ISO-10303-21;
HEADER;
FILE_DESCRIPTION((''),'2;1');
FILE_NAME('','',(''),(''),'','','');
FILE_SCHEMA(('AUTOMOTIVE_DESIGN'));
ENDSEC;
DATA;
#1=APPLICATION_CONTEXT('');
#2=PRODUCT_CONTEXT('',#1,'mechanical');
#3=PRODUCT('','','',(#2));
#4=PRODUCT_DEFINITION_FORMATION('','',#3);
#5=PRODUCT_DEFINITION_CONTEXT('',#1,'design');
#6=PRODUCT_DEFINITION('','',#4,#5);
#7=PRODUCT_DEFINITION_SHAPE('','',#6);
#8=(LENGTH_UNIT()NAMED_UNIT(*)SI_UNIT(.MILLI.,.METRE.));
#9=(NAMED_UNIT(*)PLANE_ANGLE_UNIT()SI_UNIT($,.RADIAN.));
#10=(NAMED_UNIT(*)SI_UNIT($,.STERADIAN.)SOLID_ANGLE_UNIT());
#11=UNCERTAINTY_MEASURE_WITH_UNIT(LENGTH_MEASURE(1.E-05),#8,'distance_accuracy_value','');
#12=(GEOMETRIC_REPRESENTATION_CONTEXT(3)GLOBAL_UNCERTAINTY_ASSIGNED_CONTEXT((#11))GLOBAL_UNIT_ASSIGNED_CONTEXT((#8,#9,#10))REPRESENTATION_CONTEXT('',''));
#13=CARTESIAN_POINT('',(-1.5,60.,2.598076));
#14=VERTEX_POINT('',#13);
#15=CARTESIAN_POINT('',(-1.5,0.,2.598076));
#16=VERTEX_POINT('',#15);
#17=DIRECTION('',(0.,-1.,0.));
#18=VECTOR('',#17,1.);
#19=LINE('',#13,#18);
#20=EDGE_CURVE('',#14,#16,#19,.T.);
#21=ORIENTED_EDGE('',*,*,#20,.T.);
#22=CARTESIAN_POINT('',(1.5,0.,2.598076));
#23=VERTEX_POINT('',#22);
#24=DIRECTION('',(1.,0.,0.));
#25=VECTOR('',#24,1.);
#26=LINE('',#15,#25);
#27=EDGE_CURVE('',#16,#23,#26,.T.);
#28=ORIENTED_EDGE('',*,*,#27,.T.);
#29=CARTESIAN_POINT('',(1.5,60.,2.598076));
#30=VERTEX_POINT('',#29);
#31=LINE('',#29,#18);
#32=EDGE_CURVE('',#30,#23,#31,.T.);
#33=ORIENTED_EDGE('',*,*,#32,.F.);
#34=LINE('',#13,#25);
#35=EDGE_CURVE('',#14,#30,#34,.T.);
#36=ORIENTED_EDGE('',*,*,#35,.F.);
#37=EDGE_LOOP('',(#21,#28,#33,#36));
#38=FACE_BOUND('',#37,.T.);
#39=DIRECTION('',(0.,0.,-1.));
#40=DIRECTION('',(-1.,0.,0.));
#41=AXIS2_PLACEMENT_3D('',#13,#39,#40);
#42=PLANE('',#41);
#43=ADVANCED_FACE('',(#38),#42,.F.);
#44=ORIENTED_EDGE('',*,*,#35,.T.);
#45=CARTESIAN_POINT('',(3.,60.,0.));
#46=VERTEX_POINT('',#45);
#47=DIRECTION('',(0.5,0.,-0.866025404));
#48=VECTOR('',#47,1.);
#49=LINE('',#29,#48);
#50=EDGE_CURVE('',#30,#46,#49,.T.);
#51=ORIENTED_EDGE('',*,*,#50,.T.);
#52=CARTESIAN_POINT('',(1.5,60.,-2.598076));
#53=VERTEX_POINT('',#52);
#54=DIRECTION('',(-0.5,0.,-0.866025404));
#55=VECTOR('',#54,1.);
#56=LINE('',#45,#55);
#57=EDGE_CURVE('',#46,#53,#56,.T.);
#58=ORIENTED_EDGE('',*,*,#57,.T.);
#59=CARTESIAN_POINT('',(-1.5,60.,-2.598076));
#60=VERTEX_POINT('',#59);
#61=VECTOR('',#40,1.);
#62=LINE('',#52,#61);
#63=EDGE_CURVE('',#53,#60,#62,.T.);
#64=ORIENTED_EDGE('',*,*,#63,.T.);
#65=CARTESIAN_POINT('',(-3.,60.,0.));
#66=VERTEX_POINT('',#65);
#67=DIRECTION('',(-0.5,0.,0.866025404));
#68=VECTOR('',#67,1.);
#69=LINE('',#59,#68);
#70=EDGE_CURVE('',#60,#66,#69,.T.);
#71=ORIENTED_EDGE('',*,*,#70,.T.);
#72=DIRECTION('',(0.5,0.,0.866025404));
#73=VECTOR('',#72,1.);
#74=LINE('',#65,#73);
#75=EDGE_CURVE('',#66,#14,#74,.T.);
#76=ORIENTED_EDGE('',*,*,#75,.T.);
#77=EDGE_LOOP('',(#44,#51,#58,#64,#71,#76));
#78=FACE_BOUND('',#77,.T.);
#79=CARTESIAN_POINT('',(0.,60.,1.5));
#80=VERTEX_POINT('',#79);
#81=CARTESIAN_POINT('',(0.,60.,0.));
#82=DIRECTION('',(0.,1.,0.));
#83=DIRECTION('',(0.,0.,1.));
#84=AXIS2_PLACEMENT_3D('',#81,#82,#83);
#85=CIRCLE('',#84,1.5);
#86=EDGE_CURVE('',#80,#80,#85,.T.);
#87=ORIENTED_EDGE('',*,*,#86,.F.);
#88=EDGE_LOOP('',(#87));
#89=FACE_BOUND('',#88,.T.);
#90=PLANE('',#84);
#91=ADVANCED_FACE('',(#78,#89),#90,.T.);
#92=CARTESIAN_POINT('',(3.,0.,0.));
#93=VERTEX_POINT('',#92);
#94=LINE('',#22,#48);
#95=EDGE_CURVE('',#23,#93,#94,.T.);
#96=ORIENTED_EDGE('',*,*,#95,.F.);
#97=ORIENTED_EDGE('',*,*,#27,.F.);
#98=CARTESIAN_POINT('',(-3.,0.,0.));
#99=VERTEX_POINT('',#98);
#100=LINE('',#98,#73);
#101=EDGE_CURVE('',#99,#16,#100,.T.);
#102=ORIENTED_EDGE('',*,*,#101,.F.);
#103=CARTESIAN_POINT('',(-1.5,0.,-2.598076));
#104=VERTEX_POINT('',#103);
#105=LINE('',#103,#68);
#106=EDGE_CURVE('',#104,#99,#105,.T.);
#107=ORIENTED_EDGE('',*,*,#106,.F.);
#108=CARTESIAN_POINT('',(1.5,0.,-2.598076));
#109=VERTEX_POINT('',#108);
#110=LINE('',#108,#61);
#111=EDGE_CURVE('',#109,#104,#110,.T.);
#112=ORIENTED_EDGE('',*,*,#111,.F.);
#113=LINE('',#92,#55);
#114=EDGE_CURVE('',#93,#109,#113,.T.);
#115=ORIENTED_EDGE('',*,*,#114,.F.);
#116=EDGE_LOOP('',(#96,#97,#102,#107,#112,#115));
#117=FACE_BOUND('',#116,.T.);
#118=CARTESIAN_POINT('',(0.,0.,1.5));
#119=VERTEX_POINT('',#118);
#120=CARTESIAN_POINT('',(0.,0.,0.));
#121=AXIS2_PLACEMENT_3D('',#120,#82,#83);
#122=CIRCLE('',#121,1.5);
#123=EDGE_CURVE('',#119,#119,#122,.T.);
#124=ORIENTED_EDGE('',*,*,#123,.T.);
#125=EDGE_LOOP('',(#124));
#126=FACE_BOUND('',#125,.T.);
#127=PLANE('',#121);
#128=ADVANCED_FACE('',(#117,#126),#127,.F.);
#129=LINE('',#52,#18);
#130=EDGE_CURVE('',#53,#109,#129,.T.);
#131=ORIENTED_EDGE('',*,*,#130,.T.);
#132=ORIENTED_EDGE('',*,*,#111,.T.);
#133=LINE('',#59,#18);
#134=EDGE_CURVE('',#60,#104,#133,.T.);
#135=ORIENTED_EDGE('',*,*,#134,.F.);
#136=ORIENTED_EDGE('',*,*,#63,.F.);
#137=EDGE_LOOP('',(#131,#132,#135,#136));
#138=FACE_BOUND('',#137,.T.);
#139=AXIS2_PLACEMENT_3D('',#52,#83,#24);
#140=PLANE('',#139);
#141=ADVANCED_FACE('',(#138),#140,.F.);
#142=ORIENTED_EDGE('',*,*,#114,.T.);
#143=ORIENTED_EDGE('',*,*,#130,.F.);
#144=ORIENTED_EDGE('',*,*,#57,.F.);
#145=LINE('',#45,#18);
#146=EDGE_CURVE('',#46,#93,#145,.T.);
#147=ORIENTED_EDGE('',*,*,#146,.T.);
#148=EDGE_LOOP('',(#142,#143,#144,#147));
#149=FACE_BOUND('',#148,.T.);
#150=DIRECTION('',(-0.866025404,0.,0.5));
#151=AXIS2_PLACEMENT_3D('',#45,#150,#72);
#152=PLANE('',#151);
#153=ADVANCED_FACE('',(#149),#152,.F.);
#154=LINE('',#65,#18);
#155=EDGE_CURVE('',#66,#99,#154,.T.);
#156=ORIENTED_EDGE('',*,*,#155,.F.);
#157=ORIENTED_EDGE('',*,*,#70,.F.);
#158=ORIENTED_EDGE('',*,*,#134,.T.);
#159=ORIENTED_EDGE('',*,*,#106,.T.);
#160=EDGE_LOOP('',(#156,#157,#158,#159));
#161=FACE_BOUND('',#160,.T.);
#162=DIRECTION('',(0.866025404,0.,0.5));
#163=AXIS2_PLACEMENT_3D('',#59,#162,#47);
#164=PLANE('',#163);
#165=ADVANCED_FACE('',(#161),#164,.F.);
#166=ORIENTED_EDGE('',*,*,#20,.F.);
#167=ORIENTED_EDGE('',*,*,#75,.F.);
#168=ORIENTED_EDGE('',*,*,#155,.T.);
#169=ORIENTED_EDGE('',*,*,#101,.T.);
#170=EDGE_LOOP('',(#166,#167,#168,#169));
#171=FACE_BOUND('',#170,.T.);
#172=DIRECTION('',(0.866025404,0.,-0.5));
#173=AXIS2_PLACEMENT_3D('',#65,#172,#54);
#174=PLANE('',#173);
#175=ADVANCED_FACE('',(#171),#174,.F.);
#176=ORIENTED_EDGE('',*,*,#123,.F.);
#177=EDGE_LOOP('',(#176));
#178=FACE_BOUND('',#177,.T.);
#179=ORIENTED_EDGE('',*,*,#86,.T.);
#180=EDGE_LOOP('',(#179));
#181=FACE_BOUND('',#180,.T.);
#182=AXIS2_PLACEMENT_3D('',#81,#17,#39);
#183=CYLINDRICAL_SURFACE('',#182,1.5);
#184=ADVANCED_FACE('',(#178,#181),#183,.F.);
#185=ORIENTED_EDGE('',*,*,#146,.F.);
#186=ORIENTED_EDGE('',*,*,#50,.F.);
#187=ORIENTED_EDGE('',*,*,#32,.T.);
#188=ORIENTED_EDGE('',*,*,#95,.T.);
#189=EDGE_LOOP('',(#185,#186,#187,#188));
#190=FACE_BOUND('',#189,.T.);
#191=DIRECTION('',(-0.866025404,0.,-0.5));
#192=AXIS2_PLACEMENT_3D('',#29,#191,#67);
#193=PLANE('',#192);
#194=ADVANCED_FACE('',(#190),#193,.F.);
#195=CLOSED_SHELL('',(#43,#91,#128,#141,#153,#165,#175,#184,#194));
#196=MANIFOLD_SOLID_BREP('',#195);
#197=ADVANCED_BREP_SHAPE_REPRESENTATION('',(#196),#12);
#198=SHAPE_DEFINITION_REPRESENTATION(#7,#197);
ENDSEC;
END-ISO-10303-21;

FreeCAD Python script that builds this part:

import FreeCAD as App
import Part
import Sketcher

V = App.Vector
Q = App.Units.Quantity


def add_polygon(sketch, points):
    """Adds a closed chain of lines whose ends are joined by coincident constraints."""
    first, n = sketch.GeometryCount, len(points)
    for a, b in zip(points, points[1:] + points[:1]):
        sketch.addGeometry(Part.LineSegment(App.Vector(*a, 0), App.Vector(*b, 0)), False)
    for i in range(n):
        sketch.addConstraint(Sketcher.Constraint("Coincident", first + i, 2, first + (i + 1) % n, 1))

doc = App.newDocument("Part")
body = doc.addObject("PartDesign::Body", "Body")

# Sketch on XZ plane
sketch1 = doc.addObject("Sketcher::SketchObject", "Sketch")
body.addObject(sketch1)
sketch1.AttachmentSupport = (doc.XZ_Plane, [""])
sketch1.MapMode = "FlatFace"
add_polygon(sketch1, [(3, 0), (1.5, -2.598076), (-1.5, -2.598076), (-3, 0), (-1.5, 2.598076), (1.5, 2.598076)])  # lines 0-5
sketch1.addGeometry(Part.Circle(V(0, 0, 0), V(0, 0, 1), 1.5), False)  # 6
sketch1.addConstraint([
    Sketcher.Constraint("Horizontal", 1),
    Sketcher.Constraint("Horizontal", 4),
    Sketcher.Constraint("Coincident", 6, 3, -1, 1),
    Sketcher.Constraint("Symmetric", 0, 2, 3, 2, -1, 1),
    Sketcher.Constraint("Symmetric", 2, 2, 5, 2, -1, 1),
    Sketcher.Constraint("PointOnObject", 2, 2, -1),
    Sketcher.Constraint("Parallel", 2, 5),
    Sketcher.Constraint("Vertical", 1, 2, 3, 2),
    Sketcher.Constraint("Diameter", 6, 3.0),
    Sketcher.Constraint("DistanceX", 1, 2, 1, 1, 3.0),
    Sketcher.Constraint("Angle", 0, Q("-120 deg")),
    Sketcher.Constraint("Distance", 0, 3.0),
])
pad1 = doc.addObject("PartDesign::Pad", "Pad")
body.addObject(pad1)
pad1.Profile = sketch1
pad1.Length = 60
pad1.Reversed = True

doc.recompute()
